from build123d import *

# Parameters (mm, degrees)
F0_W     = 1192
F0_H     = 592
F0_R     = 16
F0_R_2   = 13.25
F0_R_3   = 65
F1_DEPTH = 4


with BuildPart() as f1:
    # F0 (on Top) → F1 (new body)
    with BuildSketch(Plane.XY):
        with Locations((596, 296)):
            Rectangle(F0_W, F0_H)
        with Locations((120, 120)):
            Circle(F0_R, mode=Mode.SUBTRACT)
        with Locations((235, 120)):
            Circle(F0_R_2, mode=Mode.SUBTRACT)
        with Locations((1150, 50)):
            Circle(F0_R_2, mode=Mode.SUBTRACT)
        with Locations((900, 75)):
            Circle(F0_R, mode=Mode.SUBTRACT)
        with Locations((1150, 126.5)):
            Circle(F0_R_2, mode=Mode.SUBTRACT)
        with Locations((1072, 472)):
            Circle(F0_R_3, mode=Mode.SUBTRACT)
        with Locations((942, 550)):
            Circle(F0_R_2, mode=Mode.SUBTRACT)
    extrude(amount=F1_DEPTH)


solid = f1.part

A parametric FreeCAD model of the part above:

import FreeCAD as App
import Part
import Sketcher

V = App.Vector
Q = App.Units.Quantity


def add_polygon(sketch, points):
    """Adds a closed chain of lines whose ends are joined by coincident constraints."""
    first, n = sketch.GeometryCount, len(points)
    for a, b in zip(points, points[1:] + points[:1]):
        sketch.addGeometry(Part.LineSegment(App.Vector(*a, 0), App.Vector(*b, 0)), False)
    for i in range(n):
        sketch.addConstraint(Sketcher.Constraint("Coincident", first + i, 2, first + (i + 1) % n, 1))

doc = App.newDocument("Part")
params = doc.addObject("Spreadsheet::Sheet", "Params")
for row, (alias, value) in enumerate([
    ("sketch1_diameter", "32 mm"),
    ("sketch1_diameter2", "130 mm"),
    ("sketch1_diameter3", "26.5 mm"),
    ("sketch1_width", "1192 mm"),
    ("sketch1_height", "592 mm"),
    ("pad1_length", "4 mm"),
], start=1):
    params.set(f"A{row}", alias)
    params.set(f"B{row}", "=" + value)
    params.setAlias(f"B{row}", alias)

body = doc.addObject("PartDesign::Body", "Body")

# Sketch on XY plane
sketch1 = body.newObject("Sketcher::SketchObject", "Sketch")
sketch1.AttachmentSupport = (doc.getObject("XY_Plane"), [""])
sketch1.MapMode = "FlatFace"
add_polygon(sketch1, [(0, 592), (0, 0), (1192, 0), (1192, 592)])  # lines 0-3
sketch1.addGeometry(Part.Circle(V(120, 120, 0), V(0, 0, 1), 16), False)  # 4
sketch1.addGeometry(Part.Circle(V(235, 120, 0), V(0, 0, 1), 13.25), False)  # 5
sketch1.addGeometry(Part.Circle(V(900, 75, 0), V(0, 0, 1), 16), False)  # 6
sketch1.addGeometry(Part.Circle(V(1150, 50, 0), V(0, 0, 1), 13.25), False)  # 7
sketch1.addGeometry(Part.Circle(V(1150, 126.5, 0), V(0, 0, 1), 13.25), False)  # 8
sketch1.addGeometry(Part.Circle(V(1072, 472, 0), V(0, 0, 1), 65), False)  # 9
sketch1.addGeometry(Part.Circle(V(942, 550, 0), V(0, 0, 1), 13.25), False)  # 10
sketch1.addConstraint(Sketcher.Constraint("Vertical", 0))
sketch1.addConstraint(Sketcher.Constraint("Horizontal", 1))
sketch1.addConstraint(Sketcher.Constraint("Vertical", 2))
sketch1.addConstraint(Sketcher.Constraint("Horizontal", 3))
sketch1.addConstraint(Sketcher.Constraint("Coincident", 0, 2, -1, 1))
sketch1.addConstraint(Sketcher.Constraint("Equal", 4, 6))
sketch1.addConstraint(Sketcher.Constraint("Equal", 5, 7))
sketch1.addConstraint(Sketcher.Constraint("Equal", 7, 8))
sketch1.addConstraint(Sketcher.Constraint("Equal", 8, 10))
sketch1.addConstraint(Sketcher.Constraint("Horizontal", 4, 3, 5, 3))
sketch1.addConstraint(Sketcher.Constraint("Vertical", 7, 3, 8, 3))
sketch1.addConstraint(Sketcher.Constraint("Diameter", 4, Q("32 mm")))
sketch1.addConstraint(Sketcher.Constraint("Diameter", 9, Q("130 mm")))
sketch1.addConstraint(Sketcher.Constraint("Diameter", 5, Q("26.5 mm")))
sketch1.addConstraint(Sketcher.Constraint("DistanceX", 1, 1, 1, 2, Q("1192 mm")))
sketch1.addConstraint(Sketcher.Constraint("DistanceY", 0, 2, 0, 1, Q("592 mm")))
sketch1.addConstraint(Sketcher.Constraint("DistanceX", -1, 1, 4, 3, Q("120 mm")))
sketch1.addConstraint(Sketcher.Constraint("DistanceY", -1, 1, 4, 3, Q("120 mm")))
sketch1.addConstraint(Sketcher.Constraint("DistanceX", -1, 1, 5, 3, Q("235 mm")))
sketch1.addConstraint(Sketcher.Constraint("DistanceX", -1, 1, 6, 3, Q("900 mm")))
sketch1.addConstraint(Sketcher.Constraint("DistanceY", -1, 1, 6, 3, Q("75 mm")))
sketch1.addConstraint(Sketcher.Constraint("DistanceX", -1, 1, 7, 3, Q("1150 mm")))
sketch1.addConstraint(Sketcher.Constraint("DistanceY", -1, 1, 7, 3, Q("50 mm")))
sketch1.addConstraint(Sketcher.Constraint("DistanceX", -1, 1, 9, 3, Q("1072 mm")))
sketch1.addConstraint(Sketcher.Constraint("DistanceY", -1, 1, 9, 3, Q("472 mm")))
sketch1.addConstraint(Sketcher.Constraint("DistanceX", -1, 1, 10, 3, Q("942 mm")))
sketch1.addConstraint(Sketcher.Constraint("DistanceY", -1, 1, 10, 3, Q("550 mm")))
sketch1.addConstraint(Sketcher.Constraint("DistanceY", -1, 1, 8, 3, Q("126.5 mm")))
sketch1.setExpression("Constraints[15]", "Params.sketch1_diameter")
sketch1.setExpression("Constraints[16]", "Params.sketch1_diameter2")
sketch1.setExpression("Constraints[17]", "Params.sketch1_diameter3")
sketch1.setExpression("Constraints[18]", "Params.sketch1_width")
sketch1.setExpression("Constraints[19]", "Params.sketch1_height")
pad1 = body.newObject("PartDesign::Pad", "Pad")
pad1.Profile = sketch1
pad1.setExpression("Length", "Params.pad1_length")

doc.recompute()
